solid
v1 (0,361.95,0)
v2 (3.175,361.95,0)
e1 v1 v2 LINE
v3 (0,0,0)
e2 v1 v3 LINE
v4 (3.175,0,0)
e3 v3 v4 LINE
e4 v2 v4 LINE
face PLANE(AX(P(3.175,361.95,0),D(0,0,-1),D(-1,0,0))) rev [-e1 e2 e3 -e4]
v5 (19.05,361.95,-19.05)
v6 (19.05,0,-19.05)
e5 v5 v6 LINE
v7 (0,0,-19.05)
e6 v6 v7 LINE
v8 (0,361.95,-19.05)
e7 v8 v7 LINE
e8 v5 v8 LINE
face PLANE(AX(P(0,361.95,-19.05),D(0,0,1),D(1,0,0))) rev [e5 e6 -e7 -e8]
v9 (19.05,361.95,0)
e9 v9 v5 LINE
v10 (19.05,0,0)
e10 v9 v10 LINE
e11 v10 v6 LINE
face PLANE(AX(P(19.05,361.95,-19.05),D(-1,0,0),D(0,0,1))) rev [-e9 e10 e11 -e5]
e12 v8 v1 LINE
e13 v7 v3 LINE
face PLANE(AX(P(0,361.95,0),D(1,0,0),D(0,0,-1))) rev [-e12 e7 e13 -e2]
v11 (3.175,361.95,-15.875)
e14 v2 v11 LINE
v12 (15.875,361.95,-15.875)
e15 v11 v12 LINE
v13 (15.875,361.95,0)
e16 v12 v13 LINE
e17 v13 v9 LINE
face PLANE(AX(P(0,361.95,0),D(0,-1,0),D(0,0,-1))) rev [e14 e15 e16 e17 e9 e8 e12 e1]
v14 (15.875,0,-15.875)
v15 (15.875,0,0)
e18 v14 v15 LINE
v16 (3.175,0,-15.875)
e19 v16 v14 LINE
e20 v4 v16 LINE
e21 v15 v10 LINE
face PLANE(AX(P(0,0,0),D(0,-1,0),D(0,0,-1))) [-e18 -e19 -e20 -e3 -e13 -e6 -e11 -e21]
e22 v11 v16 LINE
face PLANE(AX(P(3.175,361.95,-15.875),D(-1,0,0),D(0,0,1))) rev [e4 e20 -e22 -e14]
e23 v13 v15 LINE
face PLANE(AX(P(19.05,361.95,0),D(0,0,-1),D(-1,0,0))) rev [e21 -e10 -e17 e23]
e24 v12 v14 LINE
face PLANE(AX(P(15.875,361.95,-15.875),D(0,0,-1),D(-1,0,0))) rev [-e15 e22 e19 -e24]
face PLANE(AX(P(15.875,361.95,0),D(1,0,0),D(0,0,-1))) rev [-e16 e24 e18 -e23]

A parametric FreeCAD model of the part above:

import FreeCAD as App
import Part
import Sketcher
Q = App.Units.Quantity


def add_polygon(sketch, points):
    """Adds a closed chain of lines whose ends are joined by coincident constraints."""
    first, n = sketch.GeometryCount, len(points)
    for a, b in zip(points, points[1:] + points[:1]):
        sketch.addGeometry(Part.LineSegment(App.Vector(*a, 0), App.Vector(*b, 0)), False)
    for i in range(n):
        sketch.addConstraint(Sketcher.Constraint("Coincident", first + i, 2, first + (i + 1) % n, 1))

doc = App.newDocument("Part")
body = doc.addObject("PartDesign::Body", "Body")

sketch1 = doc.addObject("Sketcher::SketchObject", "Sketch")
body.addObject(sketch1)
sketch1.AttachmentSupport = (doc.XZ_Plane, [""])
sketch1.MapMode = "FlatFace"
add_polygon(sketch1, [(0, -19.1), (0, 0), (3.2, 0), (3.2, -15.9), (15.9, -15.9), (15.9, 0), (19.1, 0), (19.1, -19.1)])
sketch1.addConstraint(Sketcher.Constraint("Vertical", 0))
sketch1.addConstraint(Sketcher.Constraint("Horizontal", 1))
sketch1.addConstraint(Sketcher.Constraint("Vertical", 2))
sketch1.addConstraint(Sketcher.Constraint("Horizontal", 3))
sketch1.addConstraint(Sketcher.Constraint("Vertical", 4))
sketch1.addConstraint(Sketcher.Constraint("Horizontal", 5))
sketch1.addConstraint(Sketcher.Constraint("Vertical", 6))
sketch1.addConstraint(Sketcher.Constraint("Horizontal", 7))
sketch1.addConstraint(Sketcher.Constraint("Coincident", 0, 2, -1, 1))
sketch1.addConstraint(Sketcher.Constraint("PointOnObject", 4, 2, -1))
sketch1.addConstraint(Sketcher.Constraint("Equal", 1, 5))
sketch1.addConstraint(Sketcher.Constraint("Equal", 7, 0))
sketch1.addConstraint(Sketcher.Constraint("DistanceX", 3, 1, 3, 2, Q("0.5 in")))
sketch1.addConstraint(Sketcher.Constraint("DistanceX", 7, 2, 7, 1, Q("0.75 in")))
sketch1.addConstraint(Sketcher.Constraint("DistanceY", 2, 2, 2, 1, Q("0.625 in")))
pad1 = doc.addObject("PartDesign::Pad", "Pad")
body.addObject(pad1)
pad1.Profile = sketch1
pad1.Length = Q("14.25 in")
pad1.Reversed = True

doc.recompute()
